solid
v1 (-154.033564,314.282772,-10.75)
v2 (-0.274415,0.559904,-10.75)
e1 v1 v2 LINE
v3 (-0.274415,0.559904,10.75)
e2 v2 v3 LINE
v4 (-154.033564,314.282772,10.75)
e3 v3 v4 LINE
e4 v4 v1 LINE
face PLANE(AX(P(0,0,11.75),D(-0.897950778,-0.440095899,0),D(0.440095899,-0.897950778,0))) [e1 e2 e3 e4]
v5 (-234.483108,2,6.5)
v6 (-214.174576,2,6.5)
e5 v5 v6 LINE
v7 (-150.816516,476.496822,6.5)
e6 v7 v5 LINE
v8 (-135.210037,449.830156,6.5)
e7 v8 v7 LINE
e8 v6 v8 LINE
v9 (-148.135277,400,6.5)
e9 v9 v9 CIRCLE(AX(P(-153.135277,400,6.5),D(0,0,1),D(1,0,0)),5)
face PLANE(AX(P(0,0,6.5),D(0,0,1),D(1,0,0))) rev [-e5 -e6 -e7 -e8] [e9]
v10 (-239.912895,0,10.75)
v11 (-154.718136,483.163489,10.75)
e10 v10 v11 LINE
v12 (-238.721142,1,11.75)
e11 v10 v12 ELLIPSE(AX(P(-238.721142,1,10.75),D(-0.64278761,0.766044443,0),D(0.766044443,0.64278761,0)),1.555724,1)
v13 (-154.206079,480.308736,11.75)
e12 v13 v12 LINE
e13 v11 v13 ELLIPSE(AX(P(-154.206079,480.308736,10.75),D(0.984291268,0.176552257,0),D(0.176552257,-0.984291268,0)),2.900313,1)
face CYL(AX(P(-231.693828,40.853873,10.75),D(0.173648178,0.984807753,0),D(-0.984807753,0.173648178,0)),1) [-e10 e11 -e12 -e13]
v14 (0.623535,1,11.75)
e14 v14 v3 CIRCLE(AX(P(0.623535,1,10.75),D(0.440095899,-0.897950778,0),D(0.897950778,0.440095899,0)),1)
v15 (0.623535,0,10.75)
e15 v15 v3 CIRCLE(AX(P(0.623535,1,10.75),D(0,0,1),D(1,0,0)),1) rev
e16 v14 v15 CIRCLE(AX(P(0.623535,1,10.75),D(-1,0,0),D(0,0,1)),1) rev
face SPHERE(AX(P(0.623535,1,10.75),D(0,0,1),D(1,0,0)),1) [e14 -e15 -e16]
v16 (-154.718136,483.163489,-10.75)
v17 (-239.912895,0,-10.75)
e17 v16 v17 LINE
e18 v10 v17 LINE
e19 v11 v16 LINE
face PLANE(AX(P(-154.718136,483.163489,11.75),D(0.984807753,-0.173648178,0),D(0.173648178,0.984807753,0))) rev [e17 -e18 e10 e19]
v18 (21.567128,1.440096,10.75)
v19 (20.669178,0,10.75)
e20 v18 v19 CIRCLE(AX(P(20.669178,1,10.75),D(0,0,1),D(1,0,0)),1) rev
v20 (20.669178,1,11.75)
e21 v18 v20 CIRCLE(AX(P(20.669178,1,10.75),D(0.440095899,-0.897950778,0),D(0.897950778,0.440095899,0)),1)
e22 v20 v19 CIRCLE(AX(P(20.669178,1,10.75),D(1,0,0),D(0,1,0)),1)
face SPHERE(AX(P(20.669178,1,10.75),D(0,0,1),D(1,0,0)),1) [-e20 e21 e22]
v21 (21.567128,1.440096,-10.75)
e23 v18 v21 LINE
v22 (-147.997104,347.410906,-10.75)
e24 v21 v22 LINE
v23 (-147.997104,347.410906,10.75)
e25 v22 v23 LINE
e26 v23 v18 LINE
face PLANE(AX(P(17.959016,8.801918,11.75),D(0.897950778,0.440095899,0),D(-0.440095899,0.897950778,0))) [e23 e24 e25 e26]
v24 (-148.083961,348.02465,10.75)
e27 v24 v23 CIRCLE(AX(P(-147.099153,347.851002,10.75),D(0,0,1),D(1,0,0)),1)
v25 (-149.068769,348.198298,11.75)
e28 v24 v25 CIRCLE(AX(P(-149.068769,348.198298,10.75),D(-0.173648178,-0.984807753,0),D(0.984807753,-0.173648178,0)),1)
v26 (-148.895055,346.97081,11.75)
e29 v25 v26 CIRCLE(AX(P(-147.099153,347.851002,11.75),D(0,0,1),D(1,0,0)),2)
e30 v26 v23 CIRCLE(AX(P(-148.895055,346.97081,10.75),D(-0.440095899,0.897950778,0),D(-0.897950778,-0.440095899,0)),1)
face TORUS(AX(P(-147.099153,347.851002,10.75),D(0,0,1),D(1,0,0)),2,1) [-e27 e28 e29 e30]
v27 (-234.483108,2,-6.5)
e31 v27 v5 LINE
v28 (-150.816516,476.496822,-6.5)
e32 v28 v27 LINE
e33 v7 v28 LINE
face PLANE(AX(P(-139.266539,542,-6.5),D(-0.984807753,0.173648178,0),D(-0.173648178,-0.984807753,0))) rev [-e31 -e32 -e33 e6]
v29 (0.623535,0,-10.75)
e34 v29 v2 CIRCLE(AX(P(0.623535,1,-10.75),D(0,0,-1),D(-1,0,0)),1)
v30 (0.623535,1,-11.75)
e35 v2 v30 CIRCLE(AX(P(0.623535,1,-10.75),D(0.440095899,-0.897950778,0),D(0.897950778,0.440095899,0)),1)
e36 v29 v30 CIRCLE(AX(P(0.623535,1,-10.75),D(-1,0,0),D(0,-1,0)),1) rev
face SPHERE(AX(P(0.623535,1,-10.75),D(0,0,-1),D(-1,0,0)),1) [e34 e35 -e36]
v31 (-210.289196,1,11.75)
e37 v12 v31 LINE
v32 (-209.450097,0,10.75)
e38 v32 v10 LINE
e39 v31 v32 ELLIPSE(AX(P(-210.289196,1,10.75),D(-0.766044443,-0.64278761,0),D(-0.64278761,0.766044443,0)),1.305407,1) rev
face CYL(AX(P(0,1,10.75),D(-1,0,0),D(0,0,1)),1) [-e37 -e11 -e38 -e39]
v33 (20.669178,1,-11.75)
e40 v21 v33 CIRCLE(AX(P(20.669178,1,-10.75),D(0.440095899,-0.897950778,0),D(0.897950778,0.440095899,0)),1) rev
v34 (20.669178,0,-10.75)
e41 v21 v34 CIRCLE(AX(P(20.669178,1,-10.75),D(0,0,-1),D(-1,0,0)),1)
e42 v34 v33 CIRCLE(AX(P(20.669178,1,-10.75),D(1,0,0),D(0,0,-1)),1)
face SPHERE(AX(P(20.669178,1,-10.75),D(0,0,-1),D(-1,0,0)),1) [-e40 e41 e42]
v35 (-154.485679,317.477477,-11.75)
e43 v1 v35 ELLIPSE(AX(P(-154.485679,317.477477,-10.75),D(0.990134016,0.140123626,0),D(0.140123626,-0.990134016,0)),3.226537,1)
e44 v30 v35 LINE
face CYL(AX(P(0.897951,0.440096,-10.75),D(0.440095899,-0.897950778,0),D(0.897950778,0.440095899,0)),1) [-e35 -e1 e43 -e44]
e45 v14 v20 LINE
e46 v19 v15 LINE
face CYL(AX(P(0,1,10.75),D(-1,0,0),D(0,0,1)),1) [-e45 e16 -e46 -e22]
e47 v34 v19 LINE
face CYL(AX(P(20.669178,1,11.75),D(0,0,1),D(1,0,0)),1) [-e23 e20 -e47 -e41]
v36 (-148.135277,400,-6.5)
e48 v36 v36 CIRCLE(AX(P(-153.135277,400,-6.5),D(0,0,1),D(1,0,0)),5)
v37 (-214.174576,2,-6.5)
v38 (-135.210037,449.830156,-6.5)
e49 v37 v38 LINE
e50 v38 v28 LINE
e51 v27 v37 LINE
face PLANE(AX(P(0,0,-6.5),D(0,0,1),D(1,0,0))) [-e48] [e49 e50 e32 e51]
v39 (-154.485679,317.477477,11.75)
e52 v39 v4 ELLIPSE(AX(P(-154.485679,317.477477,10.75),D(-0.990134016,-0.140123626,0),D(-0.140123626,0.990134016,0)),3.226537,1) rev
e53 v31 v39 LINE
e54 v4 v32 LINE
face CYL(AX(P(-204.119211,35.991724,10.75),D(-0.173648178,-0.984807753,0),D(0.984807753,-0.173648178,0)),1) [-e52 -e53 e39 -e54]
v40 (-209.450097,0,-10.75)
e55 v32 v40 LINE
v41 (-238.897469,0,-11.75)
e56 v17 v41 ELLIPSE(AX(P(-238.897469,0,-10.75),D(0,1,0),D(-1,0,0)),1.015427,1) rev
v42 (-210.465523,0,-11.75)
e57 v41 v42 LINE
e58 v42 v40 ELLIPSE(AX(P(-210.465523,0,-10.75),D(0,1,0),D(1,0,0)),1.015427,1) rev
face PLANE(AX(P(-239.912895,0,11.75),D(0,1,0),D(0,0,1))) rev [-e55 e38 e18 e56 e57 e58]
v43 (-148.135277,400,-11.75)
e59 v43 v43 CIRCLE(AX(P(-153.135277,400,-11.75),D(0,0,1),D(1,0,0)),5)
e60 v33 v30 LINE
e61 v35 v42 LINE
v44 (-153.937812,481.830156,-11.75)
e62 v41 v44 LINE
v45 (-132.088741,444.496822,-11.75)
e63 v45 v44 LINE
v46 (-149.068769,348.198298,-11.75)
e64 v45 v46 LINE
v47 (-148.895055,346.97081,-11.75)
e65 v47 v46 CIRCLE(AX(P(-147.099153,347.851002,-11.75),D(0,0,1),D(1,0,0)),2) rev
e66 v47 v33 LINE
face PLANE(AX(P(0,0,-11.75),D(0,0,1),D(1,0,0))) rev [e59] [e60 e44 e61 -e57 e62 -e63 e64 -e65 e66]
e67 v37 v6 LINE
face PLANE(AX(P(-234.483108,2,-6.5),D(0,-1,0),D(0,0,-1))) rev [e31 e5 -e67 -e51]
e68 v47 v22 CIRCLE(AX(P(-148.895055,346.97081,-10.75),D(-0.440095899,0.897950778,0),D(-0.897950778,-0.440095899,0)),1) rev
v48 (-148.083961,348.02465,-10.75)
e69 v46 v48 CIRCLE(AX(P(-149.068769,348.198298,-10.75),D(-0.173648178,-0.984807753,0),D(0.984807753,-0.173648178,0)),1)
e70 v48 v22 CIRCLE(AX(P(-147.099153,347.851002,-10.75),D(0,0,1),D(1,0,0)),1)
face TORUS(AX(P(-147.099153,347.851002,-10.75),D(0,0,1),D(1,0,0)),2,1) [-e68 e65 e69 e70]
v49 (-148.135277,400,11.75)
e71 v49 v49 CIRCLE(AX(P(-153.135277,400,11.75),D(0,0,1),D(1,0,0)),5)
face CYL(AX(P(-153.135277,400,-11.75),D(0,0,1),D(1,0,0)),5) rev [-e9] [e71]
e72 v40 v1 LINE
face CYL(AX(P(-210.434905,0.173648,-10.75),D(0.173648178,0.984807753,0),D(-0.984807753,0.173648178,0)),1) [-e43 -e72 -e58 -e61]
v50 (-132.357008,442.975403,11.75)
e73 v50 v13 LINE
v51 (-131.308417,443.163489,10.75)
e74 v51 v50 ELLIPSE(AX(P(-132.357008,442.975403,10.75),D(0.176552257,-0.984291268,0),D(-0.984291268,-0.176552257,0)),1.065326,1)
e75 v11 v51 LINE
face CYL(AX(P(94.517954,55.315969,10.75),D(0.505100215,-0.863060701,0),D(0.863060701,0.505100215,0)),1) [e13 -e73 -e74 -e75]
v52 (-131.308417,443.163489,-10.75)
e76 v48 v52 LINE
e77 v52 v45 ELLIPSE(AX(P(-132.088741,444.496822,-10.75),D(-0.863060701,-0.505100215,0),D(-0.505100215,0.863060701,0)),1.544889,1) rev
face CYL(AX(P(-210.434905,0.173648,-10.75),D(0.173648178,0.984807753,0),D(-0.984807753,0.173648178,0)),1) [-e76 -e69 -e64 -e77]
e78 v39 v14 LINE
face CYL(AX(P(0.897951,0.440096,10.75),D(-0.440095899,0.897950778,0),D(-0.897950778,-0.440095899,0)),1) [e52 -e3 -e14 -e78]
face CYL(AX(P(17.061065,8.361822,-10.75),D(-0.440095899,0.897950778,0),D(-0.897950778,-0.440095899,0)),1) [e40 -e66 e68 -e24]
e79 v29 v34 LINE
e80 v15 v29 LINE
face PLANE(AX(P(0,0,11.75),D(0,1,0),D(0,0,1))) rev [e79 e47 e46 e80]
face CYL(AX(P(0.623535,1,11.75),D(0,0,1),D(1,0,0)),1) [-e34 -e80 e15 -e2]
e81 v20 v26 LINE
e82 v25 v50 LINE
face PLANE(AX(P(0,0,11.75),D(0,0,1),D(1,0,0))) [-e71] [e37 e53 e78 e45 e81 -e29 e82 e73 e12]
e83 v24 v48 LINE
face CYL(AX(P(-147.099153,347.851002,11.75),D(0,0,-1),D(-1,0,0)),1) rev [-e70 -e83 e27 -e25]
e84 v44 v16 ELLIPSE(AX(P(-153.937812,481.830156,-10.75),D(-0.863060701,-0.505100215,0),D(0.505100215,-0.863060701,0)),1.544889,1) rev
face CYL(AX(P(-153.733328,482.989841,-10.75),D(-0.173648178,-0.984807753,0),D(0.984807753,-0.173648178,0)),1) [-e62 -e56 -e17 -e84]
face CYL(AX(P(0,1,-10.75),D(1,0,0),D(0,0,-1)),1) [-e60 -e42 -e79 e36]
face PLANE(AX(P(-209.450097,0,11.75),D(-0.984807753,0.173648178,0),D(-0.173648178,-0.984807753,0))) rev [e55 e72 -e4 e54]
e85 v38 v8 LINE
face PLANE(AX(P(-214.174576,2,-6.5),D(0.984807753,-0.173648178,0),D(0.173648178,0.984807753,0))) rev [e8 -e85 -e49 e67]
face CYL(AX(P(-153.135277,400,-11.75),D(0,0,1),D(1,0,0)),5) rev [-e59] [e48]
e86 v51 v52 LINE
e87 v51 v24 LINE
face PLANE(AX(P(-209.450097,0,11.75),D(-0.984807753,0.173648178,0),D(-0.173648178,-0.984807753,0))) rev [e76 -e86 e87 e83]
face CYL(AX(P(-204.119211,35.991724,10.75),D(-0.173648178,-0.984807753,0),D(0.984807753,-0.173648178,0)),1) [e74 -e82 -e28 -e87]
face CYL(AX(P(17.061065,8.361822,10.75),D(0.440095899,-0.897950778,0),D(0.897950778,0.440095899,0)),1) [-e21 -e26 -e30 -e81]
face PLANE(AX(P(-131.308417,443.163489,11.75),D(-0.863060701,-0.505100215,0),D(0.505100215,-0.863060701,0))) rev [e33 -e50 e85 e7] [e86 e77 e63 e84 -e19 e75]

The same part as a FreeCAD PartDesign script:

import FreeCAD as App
import Part
import Sketcher
from FreeCAD import Vector
Q = App.Units.Quantity


def edges_at(feature, points):
    """Names of the edges that pass closest to the given points."""
    edges = feature.Shape.Edges
    near = lambda p: min(range(len(edges)), key=lambda i: edges[i].distToShape(Part.Vertex(*p))[0])
    return sorted({f"Edge{near(p) + 1}" for p in points})


def add_polygon(sketch, points):
    """Adds a closed chain of lines whose ends are joined by coincident constraints."""
    first, n = sketch.GeometryCount, len(points)
    for a, b in zip(points, points[1:] + points[:1]):
        sketch.addGeometry(Part.LineSegment(App.Vector(*a, 0), App.Vector(*b, 0)), False)
    for i in range(n):
        sketch.addConstraint(Sketcher.Constraint("Coincident", first + i, 2, first + (i + 1) % n, 1))

doc = App.newDocument("Part")
body = doc.addObject("PartDesign::Body", "Body")

sketch1 = doc.addObject("Sketcher::SketchObject", "Sketch")
body.addObject(sketch1)
sketch1.AttachmentSupport = (doc.XY_Plane, [""])
sketch1.MapMode = "FlatFace"
add_polygon(sketch1, [(22, 0), (-148, 348), (-131, 443), (-155, 483), (-240, 0), (-209, 0), (-154, 314), (0, 0)])
sketch1.addConstraint([
    Sketcher.Constraint("Horizontal", 4),
    Sketcher.Constraint("Horizontal", 7),
    Sketcher.Constraint("Coincident", 6, 2, -1, 1),
    Sketcher.Constraint("PointOnObject", 3, 2, -1),
    Sketcher.Constraint("Parallel", 1, 3),
    Sketcher.Constraint("Parallel", 3, 5),
    Sketcher.Constraint("Parallel", 0, 6),
    Sketcher.Constraint("Angle", 1, Q("80 deg")),
    Sketcher.Constraint("Distance", 6, 350.0),
    Sketcher.Constraint("DistanceY", 1, 2, 2, 2, 40.0),
    Sketcher.Constraint("Angle", 0, Q("116.11 deg")),
    Sketcher.Constraint("DistanceX", 4, 1, 4, 2, 30.462798),
    Sketcher.Constraint("DistanceX", 5, 2, 7, 2, 176.3065),
    Sketcher.Constraint("Distance", 0, 387.219021),
    Sketcher.Constraint("Distance", 1, 96.93249),
])
pad1 = doc.addObject("PartDesign::Pad", "Pad")
body.addObject(pad1)
pad1.Profile = sketch1
pad1.Length = 23.5
pad1.Midplane = True

sketch2 = doc.addObject("Sketcher::SketchObject", "Sketch001")
body.addObject(sketch2)
sketch2.AttachmentSupport = (doc.XY_Plane, [""])
sketch2.MapMode = "FlatFace"
add_polygon(sketch2, [(-234, 2), (-214, 2), (-126, 502), (-139, 542)])
sketch2.addConstraint([
    Sketcher.Constraint("Horizontal", 0),
    Sketcher.Constraint("Parallel", 1, 3),
    Sketcher.Constraint("Angle", 1, Q("80 deg")),
    Sketcher.Constraint("DistanceY", -1, 1, 0, 2, 2.0),
    Sketcher.Constraint("DistanceY", -1, 1, 1, 2, 502.0),
    Sketcher.Constraint("DistanceY", -1, 1, 2, 2, 542.0),
    Sketcher.Constraint("Distance", 2, 42.139139),
    Sketcher.Constraint("DistanceX", 2, 2, -1, 1, 139.266539),
])
pocket1 = doc.addObject("PartDesign::Pocket", "Pocket")
body.addObject(pocket1)
pocket1.Profile = sketch2
pocket1.Length = 13
pocket1.Midplane = True

sketch3 = doc.addObject("Sketcher::SketchObject", "Sketch002")
body.addObject(sketch3)
sketch3.AttachmentSupport = (doc.XY_Plane, [""])
sketch3.MapMode = "FlatFace"
sketch3.AttachmentOffset = App.Placement(Vector(0, 0, 11.75), App.Rotation())
sketch3.addGeometry(Part.Circle(Vector(-153, 400, 0), Vector(0, 0, 1), 5), False)
sketch3.addConstraint([
    Sketcher.Constraint("Diameter", 0, 10.0),
    Sketcher.Constraint("DistanceY", -1, 1, 0, 3, 400.0),
    Sketcher.Constraint("DistanceX", 0, 3, -1, 1, 153.135277),
])
pocket2 = doc.addObject("PartDesign::Pocket", "Pocket001")
body.addObject(pocket2)
pocket2.Profile = sketch3
pocket2.Type = "ThroughAll"
doc.recompute()

fillet = doc.addObject("PartDesign::Fillet", "Fillet")
body.addObject(fillet)
fillet.Base = (pocket2, edges_at(pocket2, [
    (-62.934, 173.852, -11.75),
    (11.136, 0, 11.75),
    (-77.017, 157.141, 11.75),
    (-181.742, 157.141, 11.75),
    (-224.681, 0, 11.75),
    (-197.316, 241.582, 11.75),
    (-143.013, 463.163, 11.75),
    (-139.724, 395.434, 11.75),
    (-62.934, 173.852, 11.75),
    (11.136, 0, -11.75),
    (-77.017, 157.141, -11.75),
    (0, 0, 0),
    (22.273, 0, 0),
    (-148.141, 347.704, 0),
    (-181.742, 157.141, -11.75),
    (-197.316, 241.582, -11.75),
    (-139.724, 395.434, -11.75),
]))
fillet.Radius = 1

doc.recompute()
